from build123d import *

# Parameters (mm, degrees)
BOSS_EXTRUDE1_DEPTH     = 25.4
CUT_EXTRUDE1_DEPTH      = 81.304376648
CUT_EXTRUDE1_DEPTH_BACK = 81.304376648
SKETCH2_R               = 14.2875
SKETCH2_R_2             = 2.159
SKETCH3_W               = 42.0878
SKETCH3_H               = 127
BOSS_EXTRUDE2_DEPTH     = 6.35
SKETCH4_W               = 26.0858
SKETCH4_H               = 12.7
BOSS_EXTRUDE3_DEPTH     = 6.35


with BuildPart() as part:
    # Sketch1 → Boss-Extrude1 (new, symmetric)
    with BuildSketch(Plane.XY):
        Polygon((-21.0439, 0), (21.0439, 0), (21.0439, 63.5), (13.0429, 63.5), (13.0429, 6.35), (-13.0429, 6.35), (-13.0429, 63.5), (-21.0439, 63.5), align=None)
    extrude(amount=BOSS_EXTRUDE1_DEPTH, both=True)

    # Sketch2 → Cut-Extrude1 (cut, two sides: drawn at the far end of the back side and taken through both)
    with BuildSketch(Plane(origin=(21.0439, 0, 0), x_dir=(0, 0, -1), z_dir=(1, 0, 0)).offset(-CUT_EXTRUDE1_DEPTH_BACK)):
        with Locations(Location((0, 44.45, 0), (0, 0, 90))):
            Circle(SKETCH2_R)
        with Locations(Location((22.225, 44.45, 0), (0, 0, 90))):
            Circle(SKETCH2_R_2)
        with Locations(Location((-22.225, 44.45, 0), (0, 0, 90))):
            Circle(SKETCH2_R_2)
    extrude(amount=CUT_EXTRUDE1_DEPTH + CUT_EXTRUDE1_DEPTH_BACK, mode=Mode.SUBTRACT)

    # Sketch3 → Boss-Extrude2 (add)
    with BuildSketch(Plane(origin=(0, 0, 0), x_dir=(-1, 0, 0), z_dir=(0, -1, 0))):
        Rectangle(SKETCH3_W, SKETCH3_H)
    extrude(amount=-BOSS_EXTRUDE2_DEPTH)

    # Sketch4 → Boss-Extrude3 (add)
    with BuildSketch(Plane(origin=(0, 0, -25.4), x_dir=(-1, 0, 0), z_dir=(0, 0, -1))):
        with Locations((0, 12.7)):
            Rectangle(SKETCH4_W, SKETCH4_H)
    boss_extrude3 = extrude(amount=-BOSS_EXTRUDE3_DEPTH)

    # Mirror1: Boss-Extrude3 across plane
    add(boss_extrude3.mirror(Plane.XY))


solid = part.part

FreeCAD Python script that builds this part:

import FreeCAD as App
import Part
import Sketcher
from FreeCAD import Vector
Q = App.Units.Quantity

doc = App.newDocument("Part")
body = doc.addObject("PartDesign::Body", "Body")

# Sketch on XY plane
sketch1 = body.newObject("Sketcher::SketchObject", "Sketch")
sketch1.AttachmentSupport = (doc.getObject("XY_Plane"), [""])
sketch1.MapMode = "FlatFace"
sketch1.addGeometry(Part.LineSegment(Vector(-21.0439, 0, 0), Vector(21.0439, 0, 0)), False)
sketch1.addGeometry(Part.LineSegment(Vector(21.0439, 0, 0), Vector(21.0439, 63.5, 0)), False)
sketch1.addGeometry(Part.LineSegment(Vector(21.0439, 63.5, 0), Vector(13.0429, 63.5, 0)), False)
sketch1.addGeometry(Part.LineSegment(Vector(13.0429, 63.5, 0), Vector(13.0429, 6.35, 0)), False)
sketch1.addGeometry(Part.LineSegment(Vector(13.0429, 6.35, 0), Vector(-13.0429, 6.35, 0)), False)
sketch1.addGeometry(Part.LineSegment(Vector(-13.0429, 6.35, 0), Vector(-13.0429, 63.5, 0)), False)
sketch1.addGeometry(Part.LineSegment(Vector(-13.0429, 63.5, 0), Vector(-21.0439, 63.5, 0)), False)
sketch1.addGeometry(Part.LineSegment(Vector(-21.0439, 63.5, 0), Vector(-21.0439, 0, 0)), False)
sketch1.addConstraint(Sketcher.Constraint("Coincident", 0, 2, 1, 1))
sketch1.addConstraint(Sketcher.Constraint("Coincident", 1, 2, 2, 1))
sketch1.addConstraint(Sketcher.Constraint("Coincident", 2, 2, 3, 1))
sketch1.addConstraint(Sketcher.Constraint("Coincident", 3, 2, 4, 1))
sketch1.addConstraint(Sketcher.Constraint("Coincident", 4, 2, 5, 1))
sketch1.addConstraint(Sketcher.Constraint("Coincident", 5, 2, 6, 1))
sketch1.addConstraint(Sketcher.Constraint("Coincident", 6, 2, 7, 1))
sketch1.addConstraint(Sketcher.Constraint("Coincident", 7, 2, 0, 1))
sketch1.addConstraint(Sketcher.Constraint("Horizontal", 0))
sketch1.addConstraint(Sketcher.Constraint("Vertical", 1))
sketch1.addConstraint(Sketcher.Constraint("Horizontal", 2))
sketch1.addConstraint(Sketcher.Constraint("Vertical", 3))
sketch1.addConstraint(Sketcher.Constraint("Horizontal", 4))
sketch1.addConstraint(Sketcher.Constraint("Vertical", 5))
sketch1.addConstraint(Sketcher.Constraint("Horizontal", 6))
sketch1.addConstraint(Sketcher.Constraint("Vertical", 7))
sketch1.addConstraint(Sketcher.Constraint("Symmetric", 0, 2, 7, 2, -1, 1))
sketch1.addConstraint(Sketcher.Constraint("Symmetric", 2, 2, 5, 2, -2))
sketch1.addConstraint(Sketcher.Constraint("DistanceY", 1, 1, 1, 2, Q("2.5 in")))
sketch1.addConstraint(Sketcher.Constraint("DistanceY", 3, 2, 3, 1, Q("2.25 in")))
sketch1.addConstraint(Sketcher.Constraint("DistanceX", 0, 1, 0, 2, Q("1.657 in")))
sketch1.addConstraint(Sketcher.Constraint("DistanceX", 2, 2, 2, 1, Q("0.315 in")))
pad1 = body.newObject("PartDesign::Pad", "Pad")
pad1.Profile = sketch1
pad1.Length = Q("2 in")
pad1.Midplane = True

# Sketch on YZ plane
sketch2 = body.newObject("Sketcher::SketchObject", "Sketch001")
sketch2.AttachmentSupport = (doc.getObject("YZ_Plane"), [""])
sketch2.MapMode = "FlatFace"
sketch2.AttachmentOffset = App.Placement(Vector(0, 0, 0.8285 * 25.4), App.Rotation())
sketch2.addGeometry(Part.Circle(Vector(44.45, 0, 0), Vector(0, 0, 1), 14.2875), False)
sketch2.addGeometry(Part.Circle(Vector(44.45, -22.225, 0), Vector(0, 0, 1), 2.159), False)
sketch2.addGeometry(Part.Circle(Vector(44.45, 22.225, 0), Vector(0, 0, 1), 2.159), False)
sketch2.addConstraint(Sketcher.Constraint("Equal", 1, 2))
sketch2.addConstraint(Sketcher.Constraint("Symmetric", 1, 3, 2, 3, -1))
sketch2.addConstraint(Sketcher.Constraint("PointOnObject", 0, 3, -1))
sketch2.addConstraint(Sketcher.Constraint("Vertical", 0, 3, 1, 3))
sketch2.addConstraint(Sketcher.Constraint("Diameter", 1, Q("0.17 in")))
sketch2.addConstraint(Sketcher.Constraint("Diameter", 0, Q("1.125 in")))
sketch2.addConstraint(Sketcher.Constraint("DistanceX", -1, 1, 0, 3, Q("1.75 in")))
sketch2.addConstraint(Sketcher.Constraint("DistanceY", 1, 3, 2, 3, Q("1.75 in")))
pocket1 = body.newObject("PartDesign::Pocket", "Pocket")
pocket1.Profile = sketch2
pocket1.Type = "ThroughAll"
pocket1.Midplane = True

# Sketch on XZ plane
sketch3 = body.newObject("Sketcher::SketchObject", "Sketch002")
sketch3.AttachmentSupport = (doc.getObject("XZ_Plane"), [""])
sketch3.MapMode = "FlatFace"
sketch3.addGeometry(Part.LineSegment(Vector(21.0439, -63.5, 0), Vector(21.0439, 63.5, 0)), False)
sketch3.addGeometry(Part.LineSegment(Vector(21.0439, 63.5, 0), Vector(-21.0439, 63.5, 0)), False)
sketch3.addGeometry(Part.LineSegment(Vector(-21.0439, 63.5, 0), Vector(-21.0439, -63.5, 0)), False)
sketch3.addGeometry(Part.LineSegment(Vector(-21.0439, -63.5, 0), Vector(21.0439, -63.5, 0)), False)
sketch3.addConstraint(Sketcher.Constraint("Coincident", 0, 2, 1, 1))
sketch3.addConstraint(Sketcher.Constraint("Coincident", 1, 2, 2, 1))
sketch3.addConstraint(Sketcher.Constraint("Coincident", 2, 2, 3, 1))
sketch3.addConstraint(Sketcher.Constraint("Coincident", 3, 2, 0, 1))
sketch3.addConstraint(Sketcher.Constraint("Vertical", 0))
sketch3.addConstraint(Sketcher.Constraint("Horizontal", 1))
sketch3.addConstraint(Sketcher.Constraint("Vertical", 2))
sketch3.addConstraint(Sketcher.Constraint("Horizontal", 3))
sketch3.addConstraint(Sketcher.Constraint("Symmetric", 0, 2, 2, 2, -1, 1))
sketch3.addConstraint(Sketcher.Constraint("DistanceY", 0, 1, 0, 2, Q("5 in")))
sketch3.addConstraint(Sketcher.Constraint("DistanceX", 1, 2, 1, 1, Q("1.657 in")))
pad2 = body.newObject("PartDesign::Pad", "Pad001")
pad2.Profile = sketch3
pad2.Length = Q("0.25 in")
pad2.Reversed = True

# Sketch on XY plane
sketch4 = body.newObject("Sketcher::SketchObject", "Sketch003")
sketch4.AttachmentSupport = (doc.getObject("XY_Plane"), [""])
sketch4.MapMode = "FlatFace"
sketch4.AttachmentOffset = App.Placement(Vector(0, 0, -1 * 25.4), App.Rotation())
sketch4.addGeometry(Part.LineSegment(Vector(13.0429, 19.05, 0), Vector(13.0429, 6.35, 0)), False)
sketch4.addGeometry(Part.LineSegment(Vector(13.0429, 6.35, 0), Vector(-13.0429, 6.35, 0)), False)
sketch4.addGeometry(Part.LineSegment(Vector(-13.0429, 6.35, 0), Vector(-13.0429, 19.05, 0)), False)
sketch4.addGeometry(Part.LineSegment(Vector(-13.0429, 19.05, 0), Vector(13.0429, 19.05, 0)), False)
sketch4.addConstraint(Sketcher.Constraint("Coincident", 0, 2, 1, 1))
sketch4.addConstraint(Sketcher.Constraint("Coincident", 1, 2, 2, 1))
sketch4.addConstraint(Sketcher.Constraint("Coincident", 2, 2, 3, 1))
sketch4.addConstraint(Sketcher.Constraint("Coincident", 3, 2, 0, 1))
sketch4.addConstraint(Sketcher.Constraint("Vertical", 0))
sketch4.addConstraint(Sketcher.Constraint("Horizontal", 1))
sketch4.addConstraint(Sketcher.Constraint("Vertical", 2))
sketch4.addConstraint(Sketcher.Constraint("Horizontal", 3))
sketch4.addConstraint(Sketcher.Constraint("DistanceY", 0, 2, 0, 1, Q("0.5 in")))
sketch4.addConstraint(Sketcher.Constraint("DistanceX", 1, 2, 1, 1, Q("1.027 in")))
sketch4.addConstraint(Sketcher.Constraint("DistanceY", -1, 1, 0, 2, Q("0.25 in")))
sketch4.addConstraint(Sketcher.Constraint("DistanceX", -1, 1, 0, 2, Q("0.5135 in")))
pad3 = body.newObject("PartDesign::Pad", "Pad002")
pad3.Profile = sketch4
pad3.Length = Q("0.25 in")
doc.recompute()

mirrored = body.newObject("PartDesign::Mirrored", "Mirrored")
mirrored.Originals = [pad3]
mirrored.MirrorPlane = (doc.getObject("XY_Plane"), [""])
body.Tip = mirrored

doc.recompute()
